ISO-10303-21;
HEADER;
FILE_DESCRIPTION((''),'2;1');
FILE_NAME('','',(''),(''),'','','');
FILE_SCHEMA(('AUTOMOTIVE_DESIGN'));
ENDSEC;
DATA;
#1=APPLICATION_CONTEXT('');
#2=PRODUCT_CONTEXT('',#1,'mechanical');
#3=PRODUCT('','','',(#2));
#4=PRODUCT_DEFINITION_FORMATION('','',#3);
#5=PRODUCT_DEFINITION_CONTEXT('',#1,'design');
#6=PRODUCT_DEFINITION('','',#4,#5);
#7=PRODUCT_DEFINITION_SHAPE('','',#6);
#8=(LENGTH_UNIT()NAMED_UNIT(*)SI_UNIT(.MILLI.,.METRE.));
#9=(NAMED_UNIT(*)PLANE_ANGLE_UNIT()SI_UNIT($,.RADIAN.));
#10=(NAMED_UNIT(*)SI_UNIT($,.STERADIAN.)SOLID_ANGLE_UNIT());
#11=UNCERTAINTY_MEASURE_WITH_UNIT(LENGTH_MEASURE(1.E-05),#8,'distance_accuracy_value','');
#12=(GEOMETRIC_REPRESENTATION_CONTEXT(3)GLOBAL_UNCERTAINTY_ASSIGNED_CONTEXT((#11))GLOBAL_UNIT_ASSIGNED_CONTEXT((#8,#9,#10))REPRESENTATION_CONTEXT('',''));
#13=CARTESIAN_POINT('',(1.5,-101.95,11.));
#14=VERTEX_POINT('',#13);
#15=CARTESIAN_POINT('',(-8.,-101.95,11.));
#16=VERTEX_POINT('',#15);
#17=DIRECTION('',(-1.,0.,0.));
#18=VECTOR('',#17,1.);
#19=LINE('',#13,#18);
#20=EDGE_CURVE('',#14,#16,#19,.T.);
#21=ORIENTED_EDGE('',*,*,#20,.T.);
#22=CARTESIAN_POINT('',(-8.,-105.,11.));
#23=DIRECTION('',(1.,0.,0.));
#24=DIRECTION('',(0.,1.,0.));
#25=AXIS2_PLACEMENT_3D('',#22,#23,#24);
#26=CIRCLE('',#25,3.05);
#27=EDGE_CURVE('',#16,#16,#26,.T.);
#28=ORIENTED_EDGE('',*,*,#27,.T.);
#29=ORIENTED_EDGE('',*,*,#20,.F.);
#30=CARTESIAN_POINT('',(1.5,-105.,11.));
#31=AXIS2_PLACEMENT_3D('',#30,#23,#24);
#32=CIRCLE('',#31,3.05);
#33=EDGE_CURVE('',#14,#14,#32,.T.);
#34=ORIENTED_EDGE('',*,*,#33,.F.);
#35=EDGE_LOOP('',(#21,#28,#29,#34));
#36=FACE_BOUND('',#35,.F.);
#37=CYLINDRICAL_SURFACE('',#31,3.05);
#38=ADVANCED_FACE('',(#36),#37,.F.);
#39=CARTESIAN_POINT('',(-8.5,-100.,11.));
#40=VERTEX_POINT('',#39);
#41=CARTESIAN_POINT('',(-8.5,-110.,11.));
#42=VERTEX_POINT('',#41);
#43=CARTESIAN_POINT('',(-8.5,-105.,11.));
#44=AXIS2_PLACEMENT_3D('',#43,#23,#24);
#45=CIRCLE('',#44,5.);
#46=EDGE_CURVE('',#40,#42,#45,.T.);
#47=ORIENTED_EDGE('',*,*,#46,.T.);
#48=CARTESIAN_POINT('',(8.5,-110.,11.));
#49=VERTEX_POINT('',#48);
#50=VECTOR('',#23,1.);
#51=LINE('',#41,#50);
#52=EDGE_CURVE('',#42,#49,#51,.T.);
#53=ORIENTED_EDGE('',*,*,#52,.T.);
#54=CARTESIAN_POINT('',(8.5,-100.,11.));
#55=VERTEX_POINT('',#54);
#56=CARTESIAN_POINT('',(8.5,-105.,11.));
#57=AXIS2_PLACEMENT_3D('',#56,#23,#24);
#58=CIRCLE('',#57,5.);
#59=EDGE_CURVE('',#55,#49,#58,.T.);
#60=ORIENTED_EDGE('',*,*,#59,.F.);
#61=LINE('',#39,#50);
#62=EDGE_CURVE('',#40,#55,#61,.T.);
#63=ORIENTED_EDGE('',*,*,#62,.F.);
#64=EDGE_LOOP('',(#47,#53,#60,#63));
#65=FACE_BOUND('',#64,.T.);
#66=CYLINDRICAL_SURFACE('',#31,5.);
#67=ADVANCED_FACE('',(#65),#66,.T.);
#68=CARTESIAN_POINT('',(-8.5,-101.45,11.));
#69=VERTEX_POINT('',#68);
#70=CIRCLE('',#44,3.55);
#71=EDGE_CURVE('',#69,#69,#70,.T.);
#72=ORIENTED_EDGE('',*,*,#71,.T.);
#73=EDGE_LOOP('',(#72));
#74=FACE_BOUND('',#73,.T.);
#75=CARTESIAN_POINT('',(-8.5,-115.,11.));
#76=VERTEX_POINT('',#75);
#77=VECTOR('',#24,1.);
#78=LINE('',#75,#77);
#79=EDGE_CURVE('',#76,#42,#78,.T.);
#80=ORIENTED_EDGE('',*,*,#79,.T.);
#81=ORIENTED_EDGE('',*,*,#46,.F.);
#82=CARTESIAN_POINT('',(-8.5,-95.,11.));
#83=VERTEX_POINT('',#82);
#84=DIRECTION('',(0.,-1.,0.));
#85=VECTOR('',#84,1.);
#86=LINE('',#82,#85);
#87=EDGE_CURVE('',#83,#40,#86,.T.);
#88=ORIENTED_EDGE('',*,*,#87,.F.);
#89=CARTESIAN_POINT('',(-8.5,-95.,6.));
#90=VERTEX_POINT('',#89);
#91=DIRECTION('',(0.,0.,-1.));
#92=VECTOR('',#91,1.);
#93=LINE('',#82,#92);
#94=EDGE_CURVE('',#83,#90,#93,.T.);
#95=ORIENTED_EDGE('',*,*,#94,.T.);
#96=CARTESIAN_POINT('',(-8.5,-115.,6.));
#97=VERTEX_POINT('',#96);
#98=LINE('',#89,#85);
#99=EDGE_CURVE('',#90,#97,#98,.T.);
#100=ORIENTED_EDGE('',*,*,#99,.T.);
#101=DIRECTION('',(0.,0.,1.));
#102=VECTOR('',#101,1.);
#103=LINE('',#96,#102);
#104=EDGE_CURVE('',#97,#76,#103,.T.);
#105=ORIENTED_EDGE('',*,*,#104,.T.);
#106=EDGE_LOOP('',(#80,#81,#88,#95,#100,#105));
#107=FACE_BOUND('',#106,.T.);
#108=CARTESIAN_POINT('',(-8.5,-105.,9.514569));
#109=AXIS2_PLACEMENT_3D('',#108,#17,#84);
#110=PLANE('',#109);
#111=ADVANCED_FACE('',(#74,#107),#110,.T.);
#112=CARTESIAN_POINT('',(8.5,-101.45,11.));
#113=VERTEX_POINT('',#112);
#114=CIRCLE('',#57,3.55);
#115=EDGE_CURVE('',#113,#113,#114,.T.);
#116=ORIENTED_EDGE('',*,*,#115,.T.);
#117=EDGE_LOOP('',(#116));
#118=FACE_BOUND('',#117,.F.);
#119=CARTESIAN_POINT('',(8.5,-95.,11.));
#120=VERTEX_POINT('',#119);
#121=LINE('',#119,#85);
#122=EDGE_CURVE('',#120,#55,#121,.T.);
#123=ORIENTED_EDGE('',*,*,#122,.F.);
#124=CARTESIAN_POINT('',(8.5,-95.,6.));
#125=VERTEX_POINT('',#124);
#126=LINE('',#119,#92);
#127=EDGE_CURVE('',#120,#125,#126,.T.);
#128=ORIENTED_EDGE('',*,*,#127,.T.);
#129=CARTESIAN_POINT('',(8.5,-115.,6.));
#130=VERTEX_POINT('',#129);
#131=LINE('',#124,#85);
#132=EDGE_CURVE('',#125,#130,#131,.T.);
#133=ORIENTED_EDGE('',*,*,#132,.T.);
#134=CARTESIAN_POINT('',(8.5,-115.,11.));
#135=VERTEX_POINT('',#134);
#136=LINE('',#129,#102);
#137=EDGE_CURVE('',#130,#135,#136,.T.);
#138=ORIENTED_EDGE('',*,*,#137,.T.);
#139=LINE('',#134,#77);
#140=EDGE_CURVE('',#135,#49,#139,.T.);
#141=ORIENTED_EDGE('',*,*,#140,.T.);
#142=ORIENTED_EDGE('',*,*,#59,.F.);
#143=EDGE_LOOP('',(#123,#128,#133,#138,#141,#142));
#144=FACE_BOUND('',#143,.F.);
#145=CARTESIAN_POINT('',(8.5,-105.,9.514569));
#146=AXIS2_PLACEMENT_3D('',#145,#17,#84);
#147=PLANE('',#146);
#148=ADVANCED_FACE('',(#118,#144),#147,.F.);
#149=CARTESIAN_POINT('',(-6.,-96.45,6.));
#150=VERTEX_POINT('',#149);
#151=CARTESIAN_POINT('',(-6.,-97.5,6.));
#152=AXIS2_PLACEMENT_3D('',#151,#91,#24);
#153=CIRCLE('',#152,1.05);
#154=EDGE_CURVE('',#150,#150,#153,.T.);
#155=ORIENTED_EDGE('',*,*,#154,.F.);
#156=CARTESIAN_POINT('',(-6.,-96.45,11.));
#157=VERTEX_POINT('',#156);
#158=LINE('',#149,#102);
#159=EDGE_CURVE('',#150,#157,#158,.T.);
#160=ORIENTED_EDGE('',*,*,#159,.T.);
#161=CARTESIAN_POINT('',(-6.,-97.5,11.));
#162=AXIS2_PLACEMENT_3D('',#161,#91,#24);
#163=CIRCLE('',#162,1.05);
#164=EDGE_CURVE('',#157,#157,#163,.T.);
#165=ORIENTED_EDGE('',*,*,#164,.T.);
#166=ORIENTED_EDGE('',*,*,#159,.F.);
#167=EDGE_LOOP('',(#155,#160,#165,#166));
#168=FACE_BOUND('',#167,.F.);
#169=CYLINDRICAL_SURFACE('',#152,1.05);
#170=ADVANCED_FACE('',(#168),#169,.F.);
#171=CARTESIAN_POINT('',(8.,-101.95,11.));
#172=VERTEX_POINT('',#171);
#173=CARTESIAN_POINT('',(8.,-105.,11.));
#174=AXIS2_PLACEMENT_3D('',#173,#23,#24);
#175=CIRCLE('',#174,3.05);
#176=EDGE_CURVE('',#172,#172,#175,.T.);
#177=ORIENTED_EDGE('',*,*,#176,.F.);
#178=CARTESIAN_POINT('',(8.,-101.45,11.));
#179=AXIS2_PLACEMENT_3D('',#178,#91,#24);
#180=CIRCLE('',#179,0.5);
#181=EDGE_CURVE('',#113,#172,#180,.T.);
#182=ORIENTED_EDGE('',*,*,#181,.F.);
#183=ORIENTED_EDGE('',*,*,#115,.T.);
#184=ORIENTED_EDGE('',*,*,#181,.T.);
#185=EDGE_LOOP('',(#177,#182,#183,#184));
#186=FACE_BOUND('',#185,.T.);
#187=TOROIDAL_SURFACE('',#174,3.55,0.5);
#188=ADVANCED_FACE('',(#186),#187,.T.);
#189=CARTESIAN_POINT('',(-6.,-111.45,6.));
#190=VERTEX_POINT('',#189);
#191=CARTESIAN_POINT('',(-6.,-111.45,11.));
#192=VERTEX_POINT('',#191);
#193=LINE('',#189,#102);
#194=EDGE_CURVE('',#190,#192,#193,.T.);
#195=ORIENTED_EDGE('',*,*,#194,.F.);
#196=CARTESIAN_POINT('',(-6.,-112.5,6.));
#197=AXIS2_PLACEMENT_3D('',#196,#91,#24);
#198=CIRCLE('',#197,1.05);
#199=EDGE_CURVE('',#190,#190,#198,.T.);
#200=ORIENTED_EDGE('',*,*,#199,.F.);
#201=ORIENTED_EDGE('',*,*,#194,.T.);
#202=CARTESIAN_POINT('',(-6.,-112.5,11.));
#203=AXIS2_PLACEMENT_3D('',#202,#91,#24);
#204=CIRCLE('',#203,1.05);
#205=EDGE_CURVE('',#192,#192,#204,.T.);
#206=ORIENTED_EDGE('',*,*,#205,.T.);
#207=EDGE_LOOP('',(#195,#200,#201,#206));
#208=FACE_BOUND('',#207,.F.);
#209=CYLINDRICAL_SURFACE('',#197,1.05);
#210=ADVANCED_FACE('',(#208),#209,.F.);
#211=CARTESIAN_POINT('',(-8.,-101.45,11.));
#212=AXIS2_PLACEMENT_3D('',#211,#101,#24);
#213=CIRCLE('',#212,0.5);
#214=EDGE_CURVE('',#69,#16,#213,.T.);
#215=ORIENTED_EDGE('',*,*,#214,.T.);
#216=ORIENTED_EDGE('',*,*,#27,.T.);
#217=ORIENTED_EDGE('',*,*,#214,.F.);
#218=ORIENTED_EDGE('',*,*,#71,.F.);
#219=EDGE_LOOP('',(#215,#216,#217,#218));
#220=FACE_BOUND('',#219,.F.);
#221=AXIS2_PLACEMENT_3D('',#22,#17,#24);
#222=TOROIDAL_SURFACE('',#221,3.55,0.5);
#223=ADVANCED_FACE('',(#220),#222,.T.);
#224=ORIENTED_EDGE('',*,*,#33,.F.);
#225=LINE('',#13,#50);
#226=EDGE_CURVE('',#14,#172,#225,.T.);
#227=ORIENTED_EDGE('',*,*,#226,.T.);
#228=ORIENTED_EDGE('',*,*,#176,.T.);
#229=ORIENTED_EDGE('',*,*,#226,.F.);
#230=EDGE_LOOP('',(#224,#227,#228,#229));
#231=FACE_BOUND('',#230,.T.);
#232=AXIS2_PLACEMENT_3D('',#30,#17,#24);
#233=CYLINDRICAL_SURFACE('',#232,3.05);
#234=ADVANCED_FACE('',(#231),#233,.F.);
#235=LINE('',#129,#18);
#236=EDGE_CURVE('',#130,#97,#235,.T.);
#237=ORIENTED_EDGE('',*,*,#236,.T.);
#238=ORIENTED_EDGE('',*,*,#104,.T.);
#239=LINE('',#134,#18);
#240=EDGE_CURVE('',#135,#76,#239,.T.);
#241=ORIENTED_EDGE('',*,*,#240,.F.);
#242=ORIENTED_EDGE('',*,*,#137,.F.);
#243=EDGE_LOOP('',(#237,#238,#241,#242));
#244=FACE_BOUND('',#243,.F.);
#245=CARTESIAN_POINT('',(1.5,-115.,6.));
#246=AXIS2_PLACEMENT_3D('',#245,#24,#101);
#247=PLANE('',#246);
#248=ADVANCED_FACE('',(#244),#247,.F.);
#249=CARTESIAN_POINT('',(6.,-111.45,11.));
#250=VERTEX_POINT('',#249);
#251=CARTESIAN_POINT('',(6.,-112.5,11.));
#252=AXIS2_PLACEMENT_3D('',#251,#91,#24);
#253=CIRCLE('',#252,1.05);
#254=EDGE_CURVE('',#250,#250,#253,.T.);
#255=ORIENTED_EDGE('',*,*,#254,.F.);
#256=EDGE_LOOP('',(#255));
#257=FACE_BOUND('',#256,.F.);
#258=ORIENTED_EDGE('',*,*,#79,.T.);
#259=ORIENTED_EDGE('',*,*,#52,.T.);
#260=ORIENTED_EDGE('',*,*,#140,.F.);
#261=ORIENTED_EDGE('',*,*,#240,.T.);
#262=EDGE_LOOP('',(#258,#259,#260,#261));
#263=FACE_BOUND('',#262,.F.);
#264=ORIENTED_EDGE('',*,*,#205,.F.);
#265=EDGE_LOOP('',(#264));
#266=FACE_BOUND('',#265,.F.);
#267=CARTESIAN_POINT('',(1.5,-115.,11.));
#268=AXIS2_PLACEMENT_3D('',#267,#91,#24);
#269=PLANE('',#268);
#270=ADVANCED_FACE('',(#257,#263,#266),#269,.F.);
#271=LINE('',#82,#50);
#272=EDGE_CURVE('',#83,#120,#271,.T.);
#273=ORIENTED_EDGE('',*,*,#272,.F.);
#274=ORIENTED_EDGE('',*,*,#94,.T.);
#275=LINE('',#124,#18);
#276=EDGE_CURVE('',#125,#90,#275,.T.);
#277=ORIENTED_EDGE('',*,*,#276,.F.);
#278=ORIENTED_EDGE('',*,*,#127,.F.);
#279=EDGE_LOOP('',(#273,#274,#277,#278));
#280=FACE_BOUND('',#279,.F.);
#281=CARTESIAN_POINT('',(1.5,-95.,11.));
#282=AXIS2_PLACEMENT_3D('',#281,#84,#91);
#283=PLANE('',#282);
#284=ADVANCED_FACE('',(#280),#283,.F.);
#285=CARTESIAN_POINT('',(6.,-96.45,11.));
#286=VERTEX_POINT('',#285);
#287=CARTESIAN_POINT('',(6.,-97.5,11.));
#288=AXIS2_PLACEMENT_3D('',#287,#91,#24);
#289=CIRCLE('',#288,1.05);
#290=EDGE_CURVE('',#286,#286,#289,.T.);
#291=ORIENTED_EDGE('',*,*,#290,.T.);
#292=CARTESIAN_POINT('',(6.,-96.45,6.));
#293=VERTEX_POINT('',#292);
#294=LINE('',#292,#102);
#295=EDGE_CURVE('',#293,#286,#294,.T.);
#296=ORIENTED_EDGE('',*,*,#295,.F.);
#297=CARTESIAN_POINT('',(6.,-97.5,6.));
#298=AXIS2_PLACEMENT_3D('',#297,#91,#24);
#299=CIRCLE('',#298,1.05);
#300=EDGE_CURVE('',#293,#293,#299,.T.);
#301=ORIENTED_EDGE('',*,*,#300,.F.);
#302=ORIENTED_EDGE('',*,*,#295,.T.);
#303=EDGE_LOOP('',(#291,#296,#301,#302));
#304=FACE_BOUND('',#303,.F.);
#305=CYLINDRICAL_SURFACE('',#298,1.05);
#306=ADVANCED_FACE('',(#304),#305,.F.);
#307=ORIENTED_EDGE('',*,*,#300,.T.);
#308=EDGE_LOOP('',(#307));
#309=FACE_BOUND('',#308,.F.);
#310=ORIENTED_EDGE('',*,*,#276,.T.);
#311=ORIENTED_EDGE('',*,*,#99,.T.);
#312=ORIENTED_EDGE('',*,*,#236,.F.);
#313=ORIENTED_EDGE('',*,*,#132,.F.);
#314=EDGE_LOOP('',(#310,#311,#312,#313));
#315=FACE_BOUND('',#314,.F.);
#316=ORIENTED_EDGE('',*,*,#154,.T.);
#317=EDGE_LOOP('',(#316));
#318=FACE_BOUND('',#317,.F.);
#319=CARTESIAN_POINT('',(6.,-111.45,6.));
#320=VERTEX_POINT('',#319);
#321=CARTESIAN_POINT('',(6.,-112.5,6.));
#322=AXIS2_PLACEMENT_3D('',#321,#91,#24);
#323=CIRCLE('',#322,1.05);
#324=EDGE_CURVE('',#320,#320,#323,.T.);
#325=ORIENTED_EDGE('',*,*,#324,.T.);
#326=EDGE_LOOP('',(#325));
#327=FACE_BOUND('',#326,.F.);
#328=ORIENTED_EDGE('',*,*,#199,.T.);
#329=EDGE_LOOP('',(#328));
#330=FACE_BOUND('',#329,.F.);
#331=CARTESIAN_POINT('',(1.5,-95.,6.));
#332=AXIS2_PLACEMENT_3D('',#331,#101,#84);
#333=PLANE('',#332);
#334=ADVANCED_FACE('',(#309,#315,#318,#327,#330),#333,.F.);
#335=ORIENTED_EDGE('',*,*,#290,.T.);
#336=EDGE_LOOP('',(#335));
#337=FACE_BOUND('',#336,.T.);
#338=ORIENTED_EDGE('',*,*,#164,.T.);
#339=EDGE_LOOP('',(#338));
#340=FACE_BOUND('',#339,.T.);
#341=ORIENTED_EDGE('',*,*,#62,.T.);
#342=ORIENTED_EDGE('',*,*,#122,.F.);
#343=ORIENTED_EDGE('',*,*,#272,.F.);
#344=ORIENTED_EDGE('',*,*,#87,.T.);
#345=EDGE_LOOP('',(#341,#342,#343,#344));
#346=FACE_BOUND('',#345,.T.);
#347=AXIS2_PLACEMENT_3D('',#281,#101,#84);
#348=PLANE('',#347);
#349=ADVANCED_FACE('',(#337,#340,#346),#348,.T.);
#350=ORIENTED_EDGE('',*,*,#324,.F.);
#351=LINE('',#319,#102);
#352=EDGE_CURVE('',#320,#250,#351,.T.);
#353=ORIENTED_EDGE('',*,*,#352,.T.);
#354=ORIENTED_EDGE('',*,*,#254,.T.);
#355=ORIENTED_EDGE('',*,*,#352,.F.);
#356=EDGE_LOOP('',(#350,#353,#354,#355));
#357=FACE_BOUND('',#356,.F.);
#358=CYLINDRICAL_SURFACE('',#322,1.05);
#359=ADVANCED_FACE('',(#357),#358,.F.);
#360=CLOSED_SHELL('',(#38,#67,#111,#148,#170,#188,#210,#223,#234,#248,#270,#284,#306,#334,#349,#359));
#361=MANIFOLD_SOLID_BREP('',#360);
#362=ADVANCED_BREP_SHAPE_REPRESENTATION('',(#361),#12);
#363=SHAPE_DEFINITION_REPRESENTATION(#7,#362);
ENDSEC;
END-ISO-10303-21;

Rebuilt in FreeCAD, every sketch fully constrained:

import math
import FreeCAD as App
import Part
import Sketcher

V = App.Vector
Q = App.Units.Quantity


def edges_at(feature, points):
    """Names of the edges that pass closest to the given points."""
    edges = feature.Shape.Edges
    near = lambda p: min(range(len(edges)), key=lambda i: edges[i].distToShape(Part.Vertex(*p))[0])
    return sorted({f"Edge{near(p) + 1}" for p in points})

doc = App.newDocument("Part")
body = doc.addObject("PartDesign::Body", "Body")

sketch1 = body.newObject("Sketcher::SketchObject", "Sketch")
sketch1.AttachmentSupport = (doc.getObject("XZ_Plane"), [""])
sketch1.MapMode = "FlatFace"
sketch1.addGeometry([
    Part.LineSegment(V(10, -5, 0), V(10, 0, 0)),
    Part.LineSegment(V(10, 0, 0), V(5, 0, 0)),
    Part.ArcOfCircle(Part.Circle(V(0, 0, 0), V(0, 0, 1), 5), math.radians(0), math.radians(180)),
    Part.LineSegment(V(-5, 0, 0), V(-10, 0, 0)),
    Part.LineSegment(V(-10, 0, 0), V(-10, -5, 0)),
    Part.LineSegment(V(-10, -5, 0), V(10, -5, 0)),
    Part.Circle(V(0, 0, 0), V(0, 0, 1), 3.05),
], False)
sketch1.addConstraint([
    Sketcher.Constraint("Coincident", 0, 2, 1, 1),
    Sketcher.Constraint("Coincident", 1, 2, 2, 1),
    Sketcher.Constraint("Coincident", 2, 2, 3, 1),
    Sketcher.Constraint("Coincident", 3, 2, 4, 1),
    Sketcher.Constraint("Coincident", 4, 2, 5, 1),
    Sketcher.Constraint("Coincident", 5, 2, 0, 1),
    Sketcher.Constraint("Vertical", 0),
    Sketcher.Constraint("Horizontal", 1),
    Sketcher.Constraint("Horizontal", 3),
    Sketcher.Constraint("Vertical", 4),
    Sketcher.Constraint("Horizontal", 5),
    Sketcher.Constraint("Coincident", 2, 3, -1, 1),
    Sketcher.Constraint("Coincident", 6, 3, -1, 1),
    Sketcher.Constraint("Symmetric", 0, 2, 3, 2, -1, 1),
    Sketcher.Constraint("PointOnObject", 0, 2, -1),
    Sketcher.Constraint("Equal", 3, 0),
    Sketcher.Constraint("Radius", 2, Q("5 mm")),
    Sketcher.Constraint("Diameter", 6, Q("6.1 mm")),
    Sketcher.Constraint("DistanceX", 1, 2, 1, 1, Q("5 mm")),
])
pad1 = body.newObject("PartDesign::Pad", "Pad")
pad1.Profile = sketch1
pad1.Type = "TwoLengths"
pad1.Length = 7
pad1.Length2 = 10

sketch2 = body.newObject("Sketcher::SketchObject", "Sketch001")
sketch2.AttachmentSupport = (doc.getObject("XY_Plane"), [""])
sketch2.MapMode = "FlatFace"
sketch2.AttachmentOffset = App.Placement(V(0, 0, -5), App.Rotation())
sketch2.addGeometry([
    Part.Circle(V(-7.5, -4.5, 0), V(0, 0, 1), 1.05),
    Part.Circle(V(-7.5, 7.5, 0), V(0, 0, 1), 1.05),
    Part.Circle(V(7.5, 7.5, 0), V(0, 0, 1), 1.05),
    Part.Circle(V(7.5, -4.5, 0), V(0, 0, 1), 1.05),
], False)
sketch2.addConstraint([
    Sketcher.Constraint("Equal", 0, 1),
    Sketcher.Constraint("Equal", 1, 2),
    Sketcher.Constraint("Equal", 2, 3),
    Sketcher.Constraint("Symmetric", 1, 3, 2, 3, -2),
    Sketcher.Constraint("Symmetric", 0, 3, 3, 3, -2),
    Sketcher.Constraint("Vertical", 0, 3, 1, 3),
    Sketcher.Constraint("Diameter", 0, Q("2.1 mm")),
    Sketcher.Constraint("DistanceY", 0, 3, 1, 3, Q("12 mm")),
    Sketcher.Constraint("DistanceX", 1, 3, 2, 3, Q("15 mm")),
    Sketcher.Constraint("DistanceY", 0, 3, -1, 1, Q("4.5 mm")),
])
pocket1 = body.newObject("PartDesign::Pocket", "Pocket")
pocket1.Profile = sketch2
pocket1.Length = 5
pocket1.Reversed = True
doc.recompute()

fillet = body.newObject("PartDesign::Fillet", "Fillet")
fillet.Base = (pocket1, edges_at(pocket1, [(-3.05, 10, 0), (-3.05, -7, 0)]))
fillet.Radius = 0.5
body2 = doc.addObject("PartDesign::Body", "Body001")
doc.recompute()

body.Placement = App.Placement(V(1.5, -105, 11), App.Rotation(V(0, 0, 1), 90))
boolean = body2.newObject("PartDesign::Boolean", "Boolean")
boolean.Type = "Fuse"
boolean.addObjects([body])

doc.recompute()
